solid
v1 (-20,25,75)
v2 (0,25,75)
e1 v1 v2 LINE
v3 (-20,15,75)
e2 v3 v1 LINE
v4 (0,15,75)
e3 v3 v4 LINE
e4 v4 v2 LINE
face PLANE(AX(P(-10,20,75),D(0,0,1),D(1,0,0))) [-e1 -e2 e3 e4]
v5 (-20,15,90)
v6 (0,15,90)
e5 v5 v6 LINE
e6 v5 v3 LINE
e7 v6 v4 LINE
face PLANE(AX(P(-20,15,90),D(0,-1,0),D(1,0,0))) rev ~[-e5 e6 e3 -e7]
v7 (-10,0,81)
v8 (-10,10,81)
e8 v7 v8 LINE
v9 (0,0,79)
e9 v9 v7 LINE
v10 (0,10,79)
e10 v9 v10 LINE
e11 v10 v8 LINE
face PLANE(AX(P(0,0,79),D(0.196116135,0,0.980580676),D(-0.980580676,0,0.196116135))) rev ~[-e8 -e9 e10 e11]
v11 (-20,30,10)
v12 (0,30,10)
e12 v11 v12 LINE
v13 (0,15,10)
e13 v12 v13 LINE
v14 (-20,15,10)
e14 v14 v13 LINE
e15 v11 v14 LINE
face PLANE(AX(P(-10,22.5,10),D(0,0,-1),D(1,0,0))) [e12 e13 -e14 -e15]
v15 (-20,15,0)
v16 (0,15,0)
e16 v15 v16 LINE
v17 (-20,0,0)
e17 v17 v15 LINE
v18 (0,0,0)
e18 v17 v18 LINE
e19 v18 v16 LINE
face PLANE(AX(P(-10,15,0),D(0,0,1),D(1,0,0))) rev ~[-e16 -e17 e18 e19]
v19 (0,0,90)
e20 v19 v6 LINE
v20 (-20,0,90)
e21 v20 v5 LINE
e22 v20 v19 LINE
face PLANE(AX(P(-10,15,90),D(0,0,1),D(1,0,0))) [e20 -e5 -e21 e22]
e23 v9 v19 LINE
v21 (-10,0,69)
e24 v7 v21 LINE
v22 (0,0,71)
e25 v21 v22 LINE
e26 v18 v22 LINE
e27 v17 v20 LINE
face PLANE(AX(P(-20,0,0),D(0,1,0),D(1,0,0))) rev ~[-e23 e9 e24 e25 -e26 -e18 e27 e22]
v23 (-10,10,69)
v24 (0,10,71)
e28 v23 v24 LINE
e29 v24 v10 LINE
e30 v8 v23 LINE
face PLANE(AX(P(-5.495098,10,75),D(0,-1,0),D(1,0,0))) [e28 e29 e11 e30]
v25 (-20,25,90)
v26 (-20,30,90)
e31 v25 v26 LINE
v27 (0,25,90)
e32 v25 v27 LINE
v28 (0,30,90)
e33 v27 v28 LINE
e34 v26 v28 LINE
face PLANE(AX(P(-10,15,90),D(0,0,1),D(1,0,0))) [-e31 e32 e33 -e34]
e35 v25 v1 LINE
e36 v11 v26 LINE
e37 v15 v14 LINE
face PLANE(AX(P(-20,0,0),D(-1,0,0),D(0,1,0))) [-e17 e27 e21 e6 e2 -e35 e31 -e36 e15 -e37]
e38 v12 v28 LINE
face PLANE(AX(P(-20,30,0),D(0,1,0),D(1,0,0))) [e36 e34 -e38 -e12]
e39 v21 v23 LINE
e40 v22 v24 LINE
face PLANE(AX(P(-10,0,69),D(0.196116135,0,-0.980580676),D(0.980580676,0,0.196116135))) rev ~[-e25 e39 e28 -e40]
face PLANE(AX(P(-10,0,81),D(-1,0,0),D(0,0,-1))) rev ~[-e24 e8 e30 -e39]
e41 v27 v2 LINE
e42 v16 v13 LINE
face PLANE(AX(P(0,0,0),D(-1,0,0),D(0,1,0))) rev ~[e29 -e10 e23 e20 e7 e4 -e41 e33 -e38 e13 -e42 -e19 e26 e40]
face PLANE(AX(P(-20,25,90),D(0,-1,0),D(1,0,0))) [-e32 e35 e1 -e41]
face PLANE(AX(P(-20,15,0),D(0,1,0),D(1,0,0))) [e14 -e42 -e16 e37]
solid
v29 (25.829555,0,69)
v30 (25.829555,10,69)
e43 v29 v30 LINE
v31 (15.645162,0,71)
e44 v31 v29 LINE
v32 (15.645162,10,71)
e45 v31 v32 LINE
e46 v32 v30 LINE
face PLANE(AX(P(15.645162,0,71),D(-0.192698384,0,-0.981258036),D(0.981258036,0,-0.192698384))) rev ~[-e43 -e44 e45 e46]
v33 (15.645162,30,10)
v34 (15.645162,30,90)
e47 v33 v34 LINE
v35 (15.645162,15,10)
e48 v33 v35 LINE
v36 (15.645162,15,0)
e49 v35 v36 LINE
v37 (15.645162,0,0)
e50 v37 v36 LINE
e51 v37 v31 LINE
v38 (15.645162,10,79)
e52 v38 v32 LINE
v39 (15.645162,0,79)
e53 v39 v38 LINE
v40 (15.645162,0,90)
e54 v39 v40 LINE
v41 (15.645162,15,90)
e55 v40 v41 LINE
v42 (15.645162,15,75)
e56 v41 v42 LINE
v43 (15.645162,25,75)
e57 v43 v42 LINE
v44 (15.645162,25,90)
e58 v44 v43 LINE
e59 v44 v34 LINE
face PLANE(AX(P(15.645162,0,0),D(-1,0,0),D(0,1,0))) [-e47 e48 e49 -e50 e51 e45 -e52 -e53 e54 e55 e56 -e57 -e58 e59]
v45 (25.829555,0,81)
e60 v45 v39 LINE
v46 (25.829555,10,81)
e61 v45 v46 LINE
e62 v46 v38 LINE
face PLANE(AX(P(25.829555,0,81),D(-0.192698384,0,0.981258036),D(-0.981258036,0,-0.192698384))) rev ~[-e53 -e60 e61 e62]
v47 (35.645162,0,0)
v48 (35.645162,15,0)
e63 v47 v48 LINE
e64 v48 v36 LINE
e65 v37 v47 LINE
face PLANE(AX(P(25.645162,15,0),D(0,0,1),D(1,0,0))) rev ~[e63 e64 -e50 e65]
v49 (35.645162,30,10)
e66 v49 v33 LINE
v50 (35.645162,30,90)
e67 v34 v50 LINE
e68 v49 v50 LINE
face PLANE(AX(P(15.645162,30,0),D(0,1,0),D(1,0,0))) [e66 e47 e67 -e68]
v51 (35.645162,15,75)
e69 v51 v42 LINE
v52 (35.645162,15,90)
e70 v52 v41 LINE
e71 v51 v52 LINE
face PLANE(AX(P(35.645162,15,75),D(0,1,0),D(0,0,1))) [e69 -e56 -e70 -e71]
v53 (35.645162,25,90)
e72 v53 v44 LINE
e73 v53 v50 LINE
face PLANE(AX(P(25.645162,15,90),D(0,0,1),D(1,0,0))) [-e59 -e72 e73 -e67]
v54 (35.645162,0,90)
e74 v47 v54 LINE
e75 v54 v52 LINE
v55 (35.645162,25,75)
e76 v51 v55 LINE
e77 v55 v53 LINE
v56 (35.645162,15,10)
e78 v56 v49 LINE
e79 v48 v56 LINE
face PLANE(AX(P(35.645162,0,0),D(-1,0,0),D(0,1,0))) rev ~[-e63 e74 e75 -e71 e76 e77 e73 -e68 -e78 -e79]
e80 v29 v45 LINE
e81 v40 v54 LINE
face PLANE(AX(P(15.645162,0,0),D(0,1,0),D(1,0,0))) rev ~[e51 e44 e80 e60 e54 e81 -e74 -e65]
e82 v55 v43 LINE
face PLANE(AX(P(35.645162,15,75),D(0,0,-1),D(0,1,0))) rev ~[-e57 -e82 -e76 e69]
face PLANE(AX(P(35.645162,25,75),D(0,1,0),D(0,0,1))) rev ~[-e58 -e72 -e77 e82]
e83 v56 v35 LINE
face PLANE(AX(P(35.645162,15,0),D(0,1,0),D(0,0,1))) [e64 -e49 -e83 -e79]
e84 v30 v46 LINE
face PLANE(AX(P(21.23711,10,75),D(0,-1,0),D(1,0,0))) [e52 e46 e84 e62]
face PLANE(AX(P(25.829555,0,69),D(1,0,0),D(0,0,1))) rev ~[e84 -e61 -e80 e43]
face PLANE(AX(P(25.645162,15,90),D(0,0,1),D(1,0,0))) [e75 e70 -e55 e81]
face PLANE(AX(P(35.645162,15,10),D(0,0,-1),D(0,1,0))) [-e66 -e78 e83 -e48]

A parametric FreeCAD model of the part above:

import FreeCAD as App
import Part
import Sketcher

V = App.Vector
Q = App.Units.Quantity

doc = App.newDocument("Part")
body = doc.addObject("PartDesign::Body", "Body")

# Sketch on XY plane
sketch1 = body.newObject("Sketcher::SketchObject", "Sketch")
sketch1.AttachmentSupport = (doc.getObject("XY_Plane"), [""])
sketch1.MapMode = "FlatFace"
sketch1.addGeometry([
    Part.LineSegment(V(-20, 30, 0), V(-20, 0, 0)),
    Part.LineSegment(V(-20, 0, 0), V(0, 0, 0)),
    Part.LineSegment(V(0, 0, 0), V(0, 30, 0)),
    Part.LineSegment(V(0, 30, 0), V(-20, 30, 0)),
], False)
sketch1.addConstraint([
    Sketcher.Constraint("Coincident", 0, 2, 1, 1),
    Sketcher.Constraint("Coincident", 1, 2, 2, 1),
    Sketcher.Constraint("Coincident", 2, 2, 3, 1),
    Sketcher.Constraint("Coincident", 3, 2, 0, 1),
    Sketcher.Constraint("Vertical", 0),
    Sketcher.Constraint("Horizontal", 1),
    Sketcher.Constraint("Vertical", 2),
    Sketcher.Constraint("Horizontal", 3),
    Sketcher.Constraint("Coincident", 1, 2, -1, 1),
    Sketcher.Constraint("DistanceX", 1, 1, 1, 2, Q("20 mm")),
    Sketcher.Constraint("DistanceY", 0, 2, 0, 1, Q("30 mm")),
])
pad1 = body.newObject("PartDesign::Pad", "Pad")
pad1.Profile = sketch1
pad1.Length = 90

# Sketch on XY plane
sketch2 = body.newObject("Sketcher::SketchObject", "Sketch001")
sketch2.AttachmentSupport = (doc.getObject("XY_Plane"), [""])
sketch2.MapMode = "FlatFace"
sketch2.AttachmentOffset = App.Placement(V(0, 0, 90), App.Rotation())
sketch2.addGeometry([
    Part.LineSegment(V(-20, 25, 0), V(-20, 15, 0)),
    Part.LineSegment(V(-20, 15, 0), V(0, 15, 0)),
    Part.LineSegment(V(0, 15, 0), V(0, 25, 0)),
    Part.LineSegment(V(0, 25, 0), V(-20, 25, 0)),
], False)
sketch2.addConstraint([
    Sketcher.Constraint("Coincident", 0, 2, 1, 1),
    Sketcher.Constraint("Coincident", 1, 2, 2, 1),
    Sketcher.Constraint("Coincident", 2, 2, 3, 1),
    Sketcher.Constraint("Coincident", 3, 2, 0, 1),
    Sketcher.Constraint("Vertical", 0),
    Sketcher.Constraint("Horizontal", 1),
    Sketcher.Constraint("Vertical", 2),
    Sketcher.Constraint("Horizontal", 3),
    Sketcher.Constraint("PointOnObject", 1, 2, -2),
    Sketcher.Constraint("DistanceX", 1, 1, 1, 2, Q("20 mm")),
    Sketcher.Constraint("DistanceY", 0, 2, 0, 1, Q("10 mm")),
    Sketcher.Constraint("DistanceY", -1, 1, 0, 2, Q("15 mm")),
])
pocket1 = body.newObject("PartDesign::Pocket", "Pocket")
pocket1.Profile = sketch2
pocket1.Length = 15

# Sketch on XY plane
sketch3 = body.newObject("Sketcher::SketchObject", "Sketch002")
sketch3.AttachmentSupport = (doc.getObject("XY_Plane"), [""])
sketch3.MapMode = "FlatFace"
sketch3.addGeometry([
    Part.LineSegment(V(-20, 15, 0), V(-20, 30, 0)),
    Part.LineSegment(V(-20, 30, 0), V(0, 30, 0)),
    Part.LineSegment(V(0, 30, 0), V(0, 15, 0)),
    Part.LineSegment(V(0, 15, 0), V(-20, 15, 0)),
], False)
sketch3.addConstraint([
    Sketcher.Constraint("Coincident", 0, 2, 1, 1),
    Sketcher.Constraint("Coincident", 1, 2, 2, 1),
    Sketcher.Constraint("Coincident", 2, 2, 3, 1),
    Sketcher.Constraint("Coincident", 3, 2, 0, 1),
    Sketcher.Constraint("Vertical", 0),
    Sketcher.Constraint("Horizontal", 1),
    Sketcher.Constraint("Vertical", 2),
    Sketcher.Constraint("Horizontal", 3),
    Sketcher.Constraint("PointOnObject", 1, 2, -2),
    Sketcher.Constraint("DistanceX", 1, 1, 1, 2, Q("20 mm")),
    Sketcher.Constraint("DistanceY", 0, 1, 0, 2, Q("15 mm")),
    Sketcher.Constraint("DistanceY", -1, 1, 0, 2, Q("30 mm")),
])
pocket2 = body.newObject("PartDesign::Pocket", "Pocket001")
pocket2.Profile = sketch3
pocket2.Length = 10
pocket2.Reversed = True

# Sketch on XZ plane
sketch4 = body.newObject("Sketcher::SketchObject", "Sketch003")
sketch4.AttachmentSupport = (doc.getObject("XZ_Plane"), [""])
sketch4.MapMode = "FlatFace"
sketch4.addGeometry([
    Part.LineSegment(V(0, 71, 0), V(0, 79, 0)),
    Part.LineSegment(V(0, 79, 0), V(-10, 81, 0)),
    Part.LineSegment(V(-10, 81, 0), V(-10, 69, 0)),
    Part.LineSegment(V(-10, 69, 0), V(0, 71, 0)),
], False)
sketch4.addConstraint([
    Sketcher.Constraint("Coincident", 0, 2, 1, 1),
    Sketcher.Constraint("Coincident", 1, 2, 2, 1),
    Sketcher.Constraint("Coincident", 2, 2, 3, 1),
    Sketcher.Constraint("Coincident", 3, 2, 0, 1),
    Sketcher.Constraint("Vertical", 0),
    Sketcher.Constraint("Vertical", 2),
    Sketcher.Constraint("PointOnObject", 0, 2, -2),
    Sketcher.Constraint("Equal", 1, 3),
    Sketcher.Constraint("DistanceY", 0, 1, 0, 2, Q("8 mm")),
    Sketcher.Constraint("DistanceY", 2, 2, 2, 1, Q("12 mm")),
    Sketcher.Constraint("DistanceY", -1, 1, 0, 2, Q("79 mm")),
    Sketcher.Constraint("DistanceX", 1, 2, -1, 1, Q("10 mm")),
])
pocket3 = body.newObject("PartDesign::Pocket", "Pocket002")
pocket3.Profile = sketch4
pocket3.Length = 10
body2 = doc.addObject("PartDesign::Body", "Body001")

# Sketch on XY plane
sketch5 = body2.newObject("Sketcher::SketchObject", "Sketch004")
sketch5.AttachmentSupport = (doc.getObject("XY_Plane001"), [""])
sketch5.MapMode = "FlatFace"
sketch5.addGeometry([
    Part.LineSegment(V(16, 30, 0), V(16, 0, 0)),
    Part.LineSegment(V(16, 0, 0), V(36, 0, 0)),
    Part.LineSegment(V(36, 0, 0), V(36, 30, 0)),
    Part.LineSegment(V(36, 30, 0), V(16, 30, 0)),
], False)
sketch5.addConstraint([
    Sketcher.Constraint("Coincident", 0, 2, 1, 1),
    Sketcher.Constraint("Coincident", 1, 2, 2, 1),
    Sketcher.Constraint("Coincident", 2, 2, 3, 1),
    Sketcher.Constraint("Coincident", 3, 2, 0, 1),
    Sketcher.Constraint("Vertical", 0),
    Sketcher.Constraint("Horizontal", 1),
    Sketcher.Constraint("Vertical", 2),
    Sketcher.Constraint("Horizontal", 3),
    Sketcher.Constraint("PointOnObject", 0, 2, -1),
    Sketcher.Constraint("DistanceX", 1, 1, 1, 2, Q("20 mm")),
    Sketcher.Constraint("DistanceY", 0, 2, 0, 1, Q("30 mm")),
    Sketcher.Constraint("DistanceX", -1, 1, 0, 2, Q("15.645162 mm")),
])
pad2 = body2.newObject("PartDesign::Pad", "Pad001")
pad2.Profile = sketch5
pad2.Length = 90

# Sketch on YZ plane
sketch6 = body2.newObject("Sketcher::SketchObject", "Sketch005")
sketch6.AttachmentSupport = (doc.getObject("YZ_Plane001"), [""])
sketch6.MapMode = "FlatFace"
sketch6.AttachmentOffset = App.Placement(V(0, 0, 35.645162), App.Rotation())
sketch6.addGeometry([
    Part.LineSegment(V(15, 90, 0), V(15, 75, 0)),  # 0
    Part.LineSegment(V(15, 75, 0), V(25, 75, 0)),  # 1
    Part.LineSegment(V(25, 75, 0), V(25, 90, 0)),  # 2
    Part.LineSegment(V(25, 90, 0), V(15, 90, 0)),  # 3
    Part.LineSegment(V(15, 10, 0), V(15, 0, 0)),  # 4
    Part.LineSegment(V(15, 0, 0), V(30, 0, 0)),  # 5
    Part.LineSegment(V(30, 0, 0), V(30, 10, 0)),  # 6
    Part.LineSegment(V(30, 10, 0), V(15, 10, 0)),  # 7
], False)
sketch6.addConstraint([
    Sketcher.Constraint("Coincident", 0, 2, 1, 1),
    Sketcher.Constraint("Coincident", 1, 2, 2, 1),
    Sketcher.Constraint("Coincident", 2, 2, 3, 1),
    Sketcher.Constraint("Coincident", 3, 2, 0, 1),
    Sketcher.Constraint("Coincident", 4, 2, 5, 1),
    Sketcher.Constraint("Coincident", 5, 2, 6, 1),
    Sketcher.Constraint("Coincident", 6, 2, 7, 1),
    Sketcher.Constraint("Coincident", 7, 2, 4, 1),
    Sketcher.Constraint("Vertical", 0),
    Sketcher.Constraint("Horizontal", 1),
    Sketcher.Constraint("Vertical", 2),
    Sketcher.Constraint("Horizontal", 3),
    Sketcher.Constraint("Vertical", 4),
    Sketcher.Constraint("Horizontal", 5),
    Sketcher.Constraint("Vertical", 6),
    Sketcher.Constraint("Horizontal", 7),
    Sketcher.Constraint("PointOnObject", 4, 2, -1),
    Sketcher.Constraint("Vertical", 3, 2, 4, 2),
    Sketcher.Constraint("Equal", 7, 0),
    Sketcher.Constraint("Equal", 3, 4),
    Sketcher.Constraint("DistanceX", 1, 1, 1, 2, Q("10 mm")),
    Sketcher.Constraint("DistanceX", 5, 1, 5, 2, Q("15 mm")),
    Sketcher.Constraint("DistanceX", -1, 1, 0, 2, Q("15 mm")),
    Sketcher.Constraint("DistanceY", -1, 1, 0, 2, Q("75 mm")),
])
pocket4 = body2.newObject("PartDesign::Pocket", "Pocket003")
pocket4.Profile = sketch6
pocket4.Type = "ThroughAll"

# Sketch on XZ plane
sketch7 = body2.newObject("Sketcher::SketchObject", "Sketch006")
sketch7.AttachmentSupport = (doc.getObject("XZ_Plane001"), [""])
sketch7.MapMode = "FlatFace"
sketch7.addGeometry([
    Part.LineSegment(V(16, 79, 0), V(16, 71, 0)),
    Part.LineSegment(V(16, 71, 0), V(26, 69, 0)),
    Part.LineSegment(V(26, 69, 0), V(26, 81, 0)),
    Part.LineSegment(V(26, 81, 0), V(16, 79, 0)),
], False)
sketch7.addConstraint([
    Sketcher.Constraint("Coincident", 0, 2, 1, 1),
    Sketcher.Constraint("Coincident", 1, 2, 2, 1),
    Sketcher.Constraint("Coincident", 2, 2, 3, 1),
    Sketcher.Constraint("Coincident", 3, 2, 0, 1),
    Sketcher.Constraint("Vertical", 0),
    Sketcher.Constraint("Vertical", 2),
    Sketcher.Constraint("Equal", 1, 3),
    Sketcher.Constraint("DistanceY", 0, 2, 0, 1, Q("8 mm")),
    Sketcher.Constraint("DistanceY", 2, 1, 2, 2, Q("12 mm")),
    Sketcher.Constraint("DistanceY", -1, 1, 0, 2, Q("71 mm")),
    Sketcher.Constraint("DistanceX", -1, 1, 0, 2, Q("15.645162 mm")),
    Sketcher.Constraint("Distance", 1, Q("10.378914 mm")),
])
pocket5 = body2.newObject("PartDesign::Pocket", "Pocket004")
pocket5.Profile = sketch7
pocket5.Length = 10

doc.recompute()
